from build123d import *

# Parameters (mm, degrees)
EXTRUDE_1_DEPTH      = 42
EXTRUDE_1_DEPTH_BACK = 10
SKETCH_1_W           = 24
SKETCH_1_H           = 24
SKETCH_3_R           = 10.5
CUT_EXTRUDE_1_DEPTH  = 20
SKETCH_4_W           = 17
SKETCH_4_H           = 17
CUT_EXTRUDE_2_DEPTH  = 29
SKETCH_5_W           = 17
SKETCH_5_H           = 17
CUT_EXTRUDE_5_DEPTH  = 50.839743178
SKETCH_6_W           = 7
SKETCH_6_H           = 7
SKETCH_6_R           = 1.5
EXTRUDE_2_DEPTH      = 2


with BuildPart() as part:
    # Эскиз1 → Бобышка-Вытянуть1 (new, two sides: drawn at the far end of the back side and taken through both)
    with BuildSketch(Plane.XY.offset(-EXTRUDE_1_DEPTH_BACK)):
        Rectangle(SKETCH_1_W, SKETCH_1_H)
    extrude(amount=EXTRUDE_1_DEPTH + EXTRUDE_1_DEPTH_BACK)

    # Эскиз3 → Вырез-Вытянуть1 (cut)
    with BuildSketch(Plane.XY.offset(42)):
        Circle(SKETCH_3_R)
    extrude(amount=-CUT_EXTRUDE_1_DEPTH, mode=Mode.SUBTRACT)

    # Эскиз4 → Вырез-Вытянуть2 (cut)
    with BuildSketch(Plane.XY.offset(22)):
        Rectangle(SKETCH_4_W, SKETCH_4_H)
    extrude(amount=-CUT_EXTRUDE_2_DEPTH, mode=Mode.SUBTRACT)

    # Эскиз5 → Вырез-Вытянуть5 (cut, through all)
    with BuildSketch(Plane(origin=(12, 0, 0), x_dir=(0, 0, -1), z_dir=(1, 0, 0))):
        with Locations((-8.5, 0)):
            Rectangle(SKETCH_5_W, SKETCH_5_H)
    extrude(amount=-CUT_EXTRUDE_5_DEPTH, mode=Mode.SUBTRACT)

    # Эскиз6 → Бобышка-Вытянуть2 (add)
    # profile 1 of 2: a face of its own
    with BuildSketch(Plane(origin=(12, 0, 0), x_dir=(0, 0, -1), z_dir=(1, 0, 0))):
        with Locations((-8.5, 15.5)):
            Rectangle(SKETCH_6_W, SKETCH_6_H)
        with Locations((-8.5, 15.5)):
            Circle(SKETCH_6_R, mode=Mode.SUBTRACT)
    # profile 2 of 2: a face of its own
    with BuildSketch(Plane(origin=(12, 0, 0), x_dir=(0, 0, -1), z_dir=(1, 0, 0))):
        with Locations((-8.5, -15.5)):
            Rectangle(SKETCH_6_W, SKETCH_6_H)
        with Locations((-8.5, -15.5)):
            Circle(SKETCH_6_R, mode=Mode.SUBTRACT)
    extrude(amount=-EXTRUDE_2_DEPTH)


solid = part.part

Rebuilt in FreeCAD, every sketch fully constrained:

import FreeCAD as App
import Part
import Sketcher
from FreeCAD import Vector

doc = App.newDocument("Part")
body = doc.addObject("PartDesign::Body", "Body")

sketch1 = body.newObject("Sketcher::SketchObject", "Sketch")
sketch1.AttachmentSupport = (doc.getObject("XY_Plane"), [""])
sketch1.MapMode = "FlatFace"
sketch1.addGeometry([
    Part.LineSegment(Vector(-12, 12, 0), Vector(-12, -12, 0)),
    Part.LineSegment(Vector(-12, -12, 0), Vector(12, -12, 0)),
    Part.LineSegment(Vector(12, -12, 0), Vector(12, 12, 0)),
    Part.LineSegment(Vector(12, 12, 0), Vector(-12, 12, 0)),
], False)
sketch1.addConstraint([
    Sketcher.Constraint("Coincident", 0, 2, 1, 1),
    Sketcher.Constraint("Coincident", 1, 2, 2, 1),
    Sketcher.Constraint("Coincident", 2, 2, 3, 1),
    Sketcher.Constraint("Coincident", 3, 2, 0, 1),
    Sketcher.Constraint("Vertical", 0),
    Sketcher.Constraint("Horizontal", 1),
    Sketcher.Constraint("Vertical", 2),
    Sketcher.Constraint("Horizontal", 3),
    Sketcher.Constraint("Symmetric", 0, 2, 2, 2, -1, 1),
    Sketcher.Constraint("Equal", 3, 0),
    Sketcher.Constraint("DistanceX", 1, 1, 1, 2, 24.0),
])
pad1 = body.newObject("PartDesign::Pad", "Pad")
pad1.Profile = sketch1
pad1.Type = "TwoLengths"
pad1.Length = 42
pad1.Length2 = 10

sketch2 = body.newObject("Sketcher::SketchObject", "Sketch001")
sketch2.AttachmentSupport = (doc.getObject("XY_Plane"), [""])
sketch2.MapMode = "FlatFace"
sketch2.AttachmentOffset = App.Placement(Vector(0, 0, 42), App.Rotation())
sketch2.addGeometry(Part.Circle(Vector(0, 0, 0), Vector(0, 0, 1), 10.5), False)
sketch2.addConstraint([
    Sketcher.Constraint("Coincident", 0, 3, -1, 1),
    Sketcher.Constraint("Diameter", 0, 21.0),
])
pocket1 = body.newObject("PartDesign::Pocket", "Pocket")
pocket1.Profile = sketch2
pocket1.Length = 20

sketch3 = body.newObject("Sketcher::SketchObject", "Sketch002")
sketch3.AttachmentSupport = (doc.getObject("XY_Plane"), [""])
sketch3.MapMode = "FlatFace"
sketch3.AttachmentOffset = App.Placement(Vector(0, 0, 22), App.Rotation())
sketch3.addGeometry([
    Part.LineSegment(Vector(-8.5, 8.5, 0), Vector(-8.5, -8.5, 0)),
    Part.LineSegment(Vector(-8.5, -8.5, 0), Vector(8.5, -8.5, 0)),
    Part.LineSegment(Vector(8.5, -8.5, 0), Vector(8.5, 8.5, 0)),
    Part.LineSegment(Vector(8.5, 8.5, 0), Vector(-8.5, 8.5, 0)),
], False)
sketch3.addConstraint([
    Sketcher.Constraint("Coincident", 0, 2, 1, 1),
    Sketcher.Constraint("Coincident", 1, 2, 2, 1),
    Sketcher.Constraint("Coincident", 2, 2, 3, 1),
    Sketcher.Constraint("Coincident", 3, 2, 0, 1),
    Sketcher.Constraint("Vertical", 0),
    Sketcher.Constraint("Horizontal", 1),
    Sketcher.Constraint("Vertical", 2),
    Sketcher.Constraint("Horizontal", 3),
    Sketcher.Constraint("Symmetric", 0, 2, 2, 2, -1, 1),
    Sketcher.Constraint("Equal", 3, 0),
    Sketcher.Constraint("DistanceX", 1, 1, 1, 2, 17.0),
])
pocket2 = body.newObject("PartDesign::Pocket", "Pocket001")
pocket2.Profile = sketch3
pocket2.Length = 29

sketch4 = body.newObject("Sketcher::SketchObject", "Sketch003")
sketch4.AttachmentSupport = (doc.getObject("YZ_Plane"), [""])
sketch4.MapMode = "FlatFace"
sketch4.AttachmentOffset = App.Placement(Vector(0, 0, 12), App.Rotation())
sketch4.addGeometry([
    Part.LineSegment(Vector(8.5, 17, 0), Vector(-8.5, 17, 0)),
    Part.LineSegment(Vector(-8.5, 17, 0), Vector(-8.5, 0, 0)),
    Part.LineSegment(Vector(-8.5, 0, 0), Vector(8.5, 0, 0)),
    Part.LineSegment(Vector(8.5, 0, 0), Vector(8.5, 17, 0)),
], False)
sketch4.addConstraint([
    Sketcher.Constraint("Coincident", 0, 2, 1, 1),
    Sketcher.Constraint("Coincident", 1, 2, 2, 1),
    Sketcher.Constraint("Coincident", 2, 2, 3, 1),
    Sketcher.Constraint("Coincident", 3, 2, 0, 1),
    Sketcher.Constraint("Horizontal", 0),
    Sketcher.Constraint("Vertical", 1),
    Sketcher.Constraint("Horizontal", 2),
    Sketcher.Constraint("Vertical", 3),
    Sketcher.Constraint("Symmetric", 1, 2, 2, 2, -1, 1),
    Sketcher.Constraint("Equal", 2, 1),
    Sketcher.Constraint("DistanceX", 0, 2, 0, 1, 17.0),
])
pocket3 = body.newObject("PartDesign::Pocket", "Pocket002")
pocket3.Profile = sketch4
pocket3.Type = "ThroughAll"

sketch5 = body.newObject("Sketcher::SketchObject", "Sketch004")
sketch5.AttachmentSupport = (doc.getObject("YZ_Plane"), [""])
sketch5.MapMode = "FlatFace"
sketch5.AttachmentOffset = App.Placement(Vector(0, 0, 12), App.Rotation())
sketch5.addGeometry([
    Part.LineSegment(Vector(19, 12, 0), Vector(12, 12, 0)),
    Part.LineSegment(Vector(12, 12, 0), Vector(12, 5, 0)),
    Part.LineSegment(Vector(12, 5, 0), Vector(19, 5, 0)),
    Part.LineSegment(Vector(19, 5, 0), Vector(19, 12, 0)),
    Part.Circle(Vector(15.5, 8.5, 0), Vector(0, 0, 1), 1.5),
    Part.LineSegment(Vector(-12, 12, 0), Vector(-19, 12, 0)),
    Part.LineSegment(Vector(-19, 12, 0), Vector(-19, 5, 0)),
    Part.LineSegment(Vector(-19, 5, 0), Vector(-12, 5, 0)),
    Part.LineSegment(Vector(-12, 5, 0), Vector(-12, 12, 0)),
    Part.Circle(Vector(-15.5, 8.5, 0), Vector(0, 0, 1), 1.5),
], False)
sketch5.addConstraint([
    Sketcher.Constraint("Coincident", 0, 2, 1, 1),
    Sketcher.Constraint("Coincident", 1, 2, 2, 1),
    Sketcher.Constraint("Coincident", 2, 2, 3, 1),
    Sketcher.Constraint("Coincident", 3, 2, 0, 1),
    Sketcher.Constraint("Coincident", 5, 2, 6, 1),
    Sketcher.Constraint("Coincident", 6, 2, 7, 1),
    Sketcher.Constraint("Coincident", 7, 2, 8, 1),
    Sketcher.Constraint("Coincident", 8, 2, 5, 1),
    Sketcher.Constraint("Horizontal", 0),
    Sketcher.Constraint("Vertical", 1),
    Sketcher.Constraint("Horizontal", 2),
    Sketcher.Constraint("Vertical", 3),
    Sketcher.Constraint("Horizontal", 5),
    Sketcher.Constraint("Vertical", 6),
    Sketcher.Constraint("Horizontal", 7),
    Sketcher.Constraint("Vertical", 8),
    Sketcher.Constraint("Equal", 4, 9),
    Sketcher.Constraint("Symmetric", 4, 3, 9, 3, -2),
    Sketcher.Constraint("Symmetric", 3, 2, 5, 2, -2),
    Sketcher.Constraint("Symmetric", 1, 2, 7, 2, -2),
    Sketcher.Constraint("Equal", 7, 1),
    Sketcher.Constraint("Diameter", 4, 3.0),
    Sketcher.Constraint("DistanceX", 0, 2, 0, 1, 7.0),
    Sketcher.Constraint("DistanceX", -1, 1, 0, 2, 12.0),
    Sketcher.Constraint("DistanceY", -1, 1, 0, 2, 12.0),
    Sketcher.Constraint("DistanceX", 9, 3, 4, 3, 31.0),
    Sketcher.Constraint("DistanceY", -1, 1, 4, 3, 8.5),
])
pad2 = body.newObject("PartDesign::Pad", "Pad001")
pad2.Profile = sketch5
pad2.Length = 2
pad2.Reversed = True

doc.recompute()
